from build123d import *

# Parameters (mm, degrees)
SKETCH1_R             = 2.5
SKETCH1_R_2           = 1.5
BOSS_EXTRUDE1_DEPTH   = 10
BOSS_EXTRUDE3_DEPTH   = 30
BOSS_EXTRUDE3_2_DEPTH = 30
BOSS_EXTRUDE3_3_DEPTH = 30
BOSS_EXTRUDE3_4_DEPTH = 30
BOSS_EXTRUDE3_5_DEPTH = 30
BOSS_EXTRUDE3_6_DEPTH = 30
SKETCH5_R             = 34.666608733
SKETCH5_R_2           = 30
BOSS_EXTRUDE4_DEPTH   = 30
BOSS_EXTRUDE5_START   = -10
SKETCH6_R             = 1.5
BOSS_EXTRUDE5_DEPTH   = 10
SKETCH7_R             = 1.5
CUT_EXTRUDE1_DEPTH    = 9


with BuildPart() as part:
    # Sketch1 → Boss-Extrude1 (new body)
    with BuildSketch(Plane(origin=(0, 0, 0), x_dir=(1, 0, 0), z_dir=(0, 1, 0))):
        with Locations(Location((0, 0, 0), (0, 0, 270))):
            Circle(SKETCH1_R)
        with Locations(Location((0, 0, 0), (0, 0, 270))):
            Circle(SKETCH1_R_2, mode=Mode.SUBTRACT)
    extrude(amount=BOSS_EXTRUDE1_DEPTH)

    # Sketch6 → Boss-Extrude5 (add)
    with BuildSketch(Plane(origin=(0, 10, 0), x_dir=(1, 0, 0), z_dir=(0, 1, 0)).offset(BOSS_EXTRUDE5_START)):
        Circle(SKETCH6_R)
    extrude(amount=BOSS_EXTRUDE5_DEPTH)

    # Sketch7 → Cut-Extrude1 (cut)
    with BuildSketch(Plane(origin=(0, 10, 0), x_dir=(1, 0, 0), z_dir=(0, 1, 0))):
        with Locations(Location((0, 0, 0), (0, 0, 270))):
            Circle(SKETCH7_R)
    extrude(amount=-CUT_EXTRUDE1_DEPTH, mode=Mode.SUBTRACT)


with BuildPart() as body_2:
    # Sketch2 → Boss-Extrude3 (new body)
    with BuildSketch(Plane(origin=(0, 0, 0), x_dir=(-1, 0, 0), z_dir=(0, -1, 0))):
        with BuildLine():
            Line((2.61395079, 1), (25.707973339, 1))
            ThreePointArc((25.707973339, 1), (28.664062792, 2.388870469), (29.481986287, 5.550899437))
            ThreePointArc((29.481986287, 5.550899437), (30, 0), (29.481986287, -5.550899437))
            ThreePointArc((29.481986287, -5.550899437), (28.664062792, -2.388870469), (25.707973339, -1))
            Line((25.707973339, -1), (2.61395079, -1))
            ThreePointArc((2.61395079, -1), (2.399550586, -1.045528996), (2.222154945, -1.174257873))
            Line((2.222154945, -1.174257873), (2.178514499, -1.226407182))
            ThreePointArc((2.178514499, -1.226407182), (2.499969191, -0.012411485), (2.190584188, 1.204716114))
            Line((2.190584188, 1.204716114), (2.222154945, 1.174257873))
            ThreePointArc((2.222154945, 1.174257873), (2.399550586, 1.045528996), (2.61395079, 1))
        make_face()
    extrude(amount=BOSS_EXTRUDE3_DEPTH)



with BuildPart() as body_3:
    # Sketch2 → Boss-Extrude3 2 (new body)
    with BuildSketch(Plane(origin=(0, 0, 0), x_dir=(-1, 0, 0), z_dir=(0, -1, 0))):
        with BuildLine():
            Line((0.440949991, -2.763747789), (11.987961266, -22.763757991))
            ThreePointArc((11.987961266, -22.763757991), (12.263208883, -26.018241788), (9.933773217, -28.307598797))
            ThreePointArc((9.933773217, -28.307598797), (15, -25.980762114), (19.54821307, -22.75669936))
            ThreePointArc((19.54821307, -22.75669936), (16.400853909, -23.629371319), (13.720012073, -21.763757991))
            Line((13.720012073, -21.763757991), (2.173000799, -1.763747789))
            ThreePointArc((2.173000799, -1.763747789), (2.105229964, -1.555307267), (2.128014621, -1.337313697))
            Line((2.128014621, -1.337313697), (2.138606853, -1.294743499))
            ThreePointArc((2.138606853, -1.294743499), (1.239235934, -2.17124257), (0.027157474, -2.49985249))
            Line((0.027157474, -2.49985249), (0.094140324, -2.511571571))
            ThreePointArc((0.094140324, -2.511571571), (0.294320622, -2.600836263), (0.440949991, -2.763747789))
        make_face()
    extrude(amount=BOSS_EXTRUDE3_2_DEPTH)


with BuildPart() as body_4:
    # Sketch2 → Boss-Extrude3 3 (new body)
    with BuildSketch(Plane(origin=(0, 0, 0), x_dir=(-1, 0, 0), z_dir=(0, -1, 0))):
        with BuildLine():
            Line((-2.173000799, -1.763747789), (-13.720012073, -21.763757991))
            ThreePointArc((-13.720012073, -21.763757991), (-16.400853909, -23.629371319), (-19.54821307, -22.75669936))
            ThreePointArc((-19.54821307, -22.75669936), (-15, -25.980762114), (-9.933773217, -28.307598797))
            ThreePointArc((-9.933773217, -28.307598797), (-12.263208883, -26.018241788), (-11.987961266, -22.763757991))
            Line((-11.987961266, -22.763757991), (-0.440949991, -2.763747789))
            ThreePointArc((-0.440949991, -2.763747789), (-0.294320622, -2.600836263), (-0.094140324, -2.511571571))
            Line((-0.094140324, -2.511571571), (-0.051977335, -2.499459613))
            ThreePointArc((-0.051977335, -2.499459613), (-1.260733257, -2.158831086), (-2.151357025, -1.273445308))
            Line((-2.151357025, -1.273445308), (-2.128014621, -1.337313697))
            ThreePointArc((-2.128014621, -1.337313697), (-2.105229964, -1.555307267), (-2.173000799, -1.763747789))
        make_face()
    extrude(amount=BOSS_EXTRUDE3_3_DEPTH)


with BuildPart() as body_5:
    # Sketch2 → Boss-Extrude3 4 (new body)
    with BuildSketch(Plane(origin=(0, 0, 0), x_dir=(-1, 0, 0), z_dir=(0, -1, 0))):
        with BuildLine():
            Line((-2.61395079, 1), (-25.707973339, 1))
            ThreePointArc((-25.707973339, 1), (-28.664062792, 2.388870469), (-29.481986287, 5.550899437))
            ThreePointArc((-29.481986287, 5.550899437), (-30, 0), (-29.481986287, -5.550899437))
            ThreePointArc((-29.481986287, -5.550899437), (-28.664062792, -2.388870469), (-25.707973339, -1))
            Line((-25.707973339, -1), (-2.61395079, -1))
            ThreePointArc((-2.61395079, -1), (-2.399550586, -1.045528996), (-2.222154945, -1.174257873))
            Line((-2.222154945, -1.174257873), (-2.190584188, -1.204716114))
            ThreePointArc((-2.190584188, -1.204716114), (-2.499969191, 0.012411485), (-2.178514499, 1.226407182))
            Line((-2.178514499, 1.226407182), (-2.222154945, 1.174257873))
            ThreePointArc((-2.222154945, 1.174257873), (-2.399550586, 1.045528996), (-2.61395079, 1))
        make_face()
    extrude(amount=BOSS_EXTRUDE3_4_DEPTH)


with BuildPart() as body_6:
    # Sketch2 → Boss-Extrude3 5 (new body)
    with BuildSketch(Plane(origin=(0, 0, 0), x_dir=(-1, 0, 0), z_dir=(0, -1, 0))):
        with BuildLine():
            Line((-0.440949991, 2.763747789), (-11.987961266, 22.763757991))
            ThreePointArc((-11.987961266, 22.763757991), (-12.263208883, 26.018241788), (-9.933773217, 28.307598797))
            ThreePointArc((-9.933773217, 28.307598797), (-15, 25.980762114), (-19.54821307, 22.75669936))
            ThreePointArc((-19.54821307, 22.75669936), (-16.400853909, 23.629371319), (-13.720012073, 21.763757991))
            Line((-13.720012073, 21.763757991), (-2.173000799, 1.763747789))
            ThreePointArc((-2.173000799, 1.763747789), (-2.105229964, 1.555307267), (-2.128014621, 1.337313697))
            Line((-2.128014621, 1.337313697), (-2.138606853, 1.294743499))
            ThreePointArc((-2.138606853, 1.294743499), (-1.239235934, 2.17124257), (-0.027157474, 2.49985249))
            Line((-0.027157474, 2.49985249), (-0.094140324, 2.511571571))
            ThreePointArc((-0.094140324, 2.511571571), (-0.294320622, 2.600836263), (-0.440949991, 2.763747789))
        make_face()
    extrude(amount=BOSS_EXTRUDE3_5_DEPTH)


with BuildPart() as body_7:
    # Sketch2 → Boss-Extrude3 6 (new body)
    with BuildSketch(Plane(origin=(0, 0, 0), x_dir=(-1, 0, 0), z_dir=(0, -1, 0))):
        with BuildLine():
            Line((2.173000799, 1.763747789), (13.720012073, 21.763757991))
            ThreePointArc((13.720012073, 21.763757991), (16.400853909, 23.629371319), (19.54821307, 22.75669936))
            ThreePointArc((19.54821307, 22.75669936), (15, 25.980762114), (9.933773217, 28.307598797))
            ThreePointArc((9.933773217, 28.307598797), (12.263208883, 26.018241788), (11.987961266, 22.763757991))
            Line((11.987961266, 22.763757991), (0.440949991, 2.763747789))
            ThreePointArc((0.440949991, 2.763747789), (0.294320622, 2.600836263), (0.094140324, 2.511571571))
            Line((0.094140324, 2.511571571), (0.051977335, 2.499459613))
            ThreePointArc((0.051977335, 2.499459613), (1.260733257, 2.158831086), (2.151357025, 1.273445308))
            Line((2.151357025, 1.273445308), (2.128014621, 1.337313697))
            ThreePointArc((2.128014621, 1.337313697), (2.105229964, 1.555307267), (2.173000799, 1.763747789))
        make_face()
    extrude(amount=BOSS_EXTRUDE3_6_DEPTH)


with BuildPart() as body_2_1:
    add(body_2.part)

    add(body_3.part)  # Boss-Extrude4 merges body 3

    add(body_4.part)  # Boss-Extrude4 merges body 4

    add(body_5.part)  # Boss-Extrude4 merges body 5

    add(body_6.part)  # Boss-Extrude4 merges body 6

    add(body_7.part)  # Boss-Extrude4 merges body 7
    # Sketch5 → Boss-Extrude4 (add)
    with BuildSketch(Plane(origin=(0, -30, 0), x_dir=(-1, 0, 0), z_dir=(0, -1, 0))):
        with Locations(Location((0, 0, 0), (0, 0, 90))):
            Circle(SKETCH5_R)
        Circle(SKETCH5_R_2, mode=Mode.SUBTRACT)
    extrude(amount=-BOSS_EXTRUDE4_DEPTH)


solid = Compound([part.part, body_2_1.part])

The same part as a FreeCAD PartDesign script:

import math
import FreeCAD as App
import Part
import Sketcher

V = App.Vector
Q = App.Units.Quantity

doc = App.newDocument("Part")
body = doc.addObject("PartDesign::Body", "Body")

# Sketch on XZ plane
sketch1 = body.newObject("Sketcher::SketchObject", "Sketch")
sketch1.AttachmentSupport = (doc.getObject("XZ_Plane"), [""])
sketch1.MapMode = "FlatFace"
sketch1.addGeometry(Part.Circle(V(0, 0, 0), V(0, 0, 1), 2.5), False)
sketch1.addGeometry(Part.Circle(V(0, 0, 0), V(0, 0, 1), 1.5), False)
sketch1.addConstraint(Sketcher.Constraint("Coincident", 0, 3, -1, 1))
sketch1.addConstraint(Sketcher.Constraint("Coincident", 1, 3, -1, 1))
sketch1.addConstraint(Sketcher.Constraint("Diameter", 0, Q("5 mm")))
sketch1.addConstraint(Sketcher.Constraint("Diameter", 1, Q("3 mm")))
pad1 = body.newObject("PartDesign::Pad", "Pad")
pad1.Profile = sketch1
pad1.Length = 10
pad1.Reversed = True

# Sketch on XZ plane
sketch2 = body.newObject("Sketcher::SketchObject", "Sketch001")
sketch2.AttachmentSupport = (doc.getObject("XZ_Plane"), [""])
sketch2.MapMode = "FlatFace"
sketch2.addGeometry(Part.Circle(V(0, 0, 0), V(0, 0, 1), 1.5), False)
sketch2.addConstraint(Sketcher.Constraint("Coincident", 0, 3, -1, 1))
sketch2.addConstraint(Sketcher.Constraint("Diameter", 0, Q("3 mm")))
pad2 = body.newObject("PartDesign::Pad", "Pad001")
pad2.Profile = sketch2
pad2.Length = 10
pad2.Reversed = True

# Sketch on XZ plane
sketch3 = body.newObject("Sketcher::SketchObject", "Sketch002")
sketch3.AttachmentSupport = (doc.getObject("XZ_Plane"), [""])
sketch3.MapMode = "FlatFace"
sketch3.AttachmentOffset = App.Placement(V(0, 0, -10), App.Rotation())
sketch3.addGeometry(Part.Circle(V(0, 0, 0), V(0, 0, 1), 1.5), False)
sketch3.addConstraint(Sketcher.Constraint("Coincident", 0, 3, -1, 1))
sketch3.addConstraint(Sketcher.Constraint("Diameter", 0, Q("3 mm")))
pocket1 = body.newObject("PartDesign::Pocket", "Pocket")
pocket1.Profile = sketch3
pocket1.Length = 9
pocket1.Reversed = True
body2 = doc.addObject("PartDesign::Body", "Body001")

# Sketch on XZ plane
sketch4 = body2.newObject("Sketcher::SketchObject", "Sketch003")
sketch4.AttachmentSupport = (doc.getObject("XZ_Plane001"), [""])
sketch4.MapMode = "FlatFace"
sketch4.addGeometry(Part.LineSegment(V(-25.707973, -1, 0), V(-2.613951, -1, 0)), False)
sketch4.addGeometry(Part.ArcOfCircle(Part.Circle(V(-2.613951, -1.52758, 0), V(0, 0, 1), 0.52758), math.radians(42.044158), math.radians(90)), False)
sketch4.addGeometry(Part.LineSegment(V(-2.222155, -1.174258, 0), V(-2.190584, -1.204716, 0)), False)
sketch4.addGeometry(Part.ArcOfCircle(Part.Circle(V(0, 0, 0), V(0, 0, 1), 2.5), math.radians(150.622416), math.radians(208.808681)), False)
sketch4.addGeometry(Part.LineSegment(V(-2.178514, 1.226407, 0), V(-2.222155, 1.174258, 0)), False)
sketch4.addGeometry(Part.ArcOfCircle(Part.Circle(V(-2.613951, 1.52758, 0), V(0, 0, 1), 0.52758), math.radians(-90), math.radians(-42.044158)), False)
sketch4.addGeometry(Part.LineSegment(V(-2.613951, 1, 0), V(-25.707973, 1, 0)), False)
sketch4.addGeometry(Part.ArcOfCircle(Part.Circle(V(-25.707973, 4.840324, 0), V(0, 0, 1), 3.840324), math.radians(169.33712), math.radians(270)), False)
sketch4.addGeometry(Part.ArcOfCircle(Part.Circle(V(0, 0, 0), V(0, 0, 1), 30), math.radians(169.33712), math.radians(190.66288)), False)
sketch4.addGeometry(Part.ArcOfCircle(Part.Circle(V(-25.707973, -4.840324, 0), V(0, 0, 1), 3.840324), math.radians(90), math.radians(190.66288)), False)
sketch4.addConstraint(Sketcher.Constraint("Tangent", 0, 2, 1, 2))
sketch4.addConstraint(Sketcher.Constraint("Coincident", 1, 1, 2, 1))
sketch4.addConstraint(Sketcher.Constraint("Coincident", 2, 2, 3, 2))
sketch4.addConstraint(Sketcher.Constraint("Coincident", 3, 1, 4, 1))
sketch4.addConstraint(Sketcher.Constraint("Coincident", 4, 2, 5, 2))
sketch4.addConstraint(Sketcher.Constraint("Tangent", 5, 1, 6, 1))
sketch4.addConstraint(Sketcher.Constraint("Tangent", 6, 2, 7, 2))
sketch4.addConstraint(Sketcher.Constraint("Tangent", 7, 1, 8, 1))
sketch4.addConstraint(Sketcher.Constraint("Tangent", 8, 2, 9, 2))
sketch4.addConstraint(Sketcher.Constraint("Tangent", 9, 1, 0, 1))
sketch4.addConstraint(Sketcher.Constraint("Horizontal", 0))
sketch4.addConstraint(Sketcher.Constraint("Horizontal", 6))
sketch4.addConstraint(Sketcher.Constraint("Coincident", 3, 3, -1, 1))
sketch4.addConstraint(Sketcher.Constraint("Coincident", 8, 3, -1, 1))
sketch4.addConstraint(Sketcher.Constraint("Equal", 1, 5))
sketch4.addConstraint(Sketcher.Constraint("Equal", 7, 9))
sketch4.addConstraint(Sketcher.Constraint("Symmetric", 1, 3, 5, 3, -1))
sketch4.addConstraint(Sketcher.Constraint("Vertical", 1, 1, 4, 2))
sketch4.addConstraint(Sketcher.Constraint("Radius", 8, Q("30 mm")))
sketch4.addConstraint(Sketcher.Constraint("Radius", 3, Q("2.5 mm")))
sketch4.addConstraint(Sketcher.Constraint("DistanceY", 0, 2, -1, 1, Q("1 mm")))
sketch4.addConstraint(Sketcher.Constraint("Radius", 1, Q("0.52758 mm")))
sketch4.addConstraint(Sketcher.Constraint("Distance", 4, Q("0.068 mm")))
sketch4.addConstraint(Sketcher.Constraint("Radius", 7, Q("3.840324 mm")))
sketch4.addConstraint(Sketcher.Constraint("Distance", 2, Q("0.043868 mm")))
sketch4.addConstraint(Sketcher.Constraint("DistanceX", 0, 1, 0, 2, Q("23.094023 mm")))
sketch4.addConstraint(Sketcher.Constraint("DistanceY", 1, 3, 1, 1, Q("0.353322 mm")))
pad3 = body2.newObject("PartDesign::Pad", "Pad002")
pad3.Profile = sketch4
pad3.Length = 30
body3 = doc.addObject("PartDesign::Body", "Body002")

# Sketch on XZ plane
sketch5 = body3.newObject("Sketcher::SketchObject", "Sketch004")
sketch5.AttachmentSupport = (doc.getObject("XZ_Plane002"), [""])
sketch5.MapMode = "FlatFace"
sketch5.addGeometry(Part.LineSegment(V(-0.44095, 2.763748, 0), V(-11.987961, 22.763758, 0)), False)
sketch5.addGeometry(Part.ArcOfCircle(Part.Circle(V(-8.662143, 24.68392, 0), V(0, 0, 1), 3.840324), math.radians(109.33712), math.radians(210)), False)
sketch5.addGeometry(Part.ArcOfCircle(Part.Circle(V(0, 0, 0), V(0, 0, 1), 30), math.radians(109.33712), math.radians(130.66288)), False)
sketch5.addGeometry(Part.ArcOfCircle(Part.Circle(V(-17.04583, 19.843596, 0), V(0, 0, 1), 3.840324), math.radians(30), math.radians(130.66288)), False)
sketch5.addGeometry(Part.LineSegment(V(-13.720012, 21.763758, 0), V(-2.173001, 1.763748, 0)), False)
sketch5.addGeometry(Part.ArcOfCircle(Part.Circle(V(-2.629898, 1.499958, 0), V(0, 0, 1), 0.52758), math.radians(-17.955842), math.radians(30)), False)
sketch5.addGeometry(Part.LineSegment(V(-2.128015, 1.337314, 0), V(-2.138607, 1.294743, 0)), False)
sketch5.addGeometry(Part.ArcOfCircle(Part.Circle(V(0, 0, 0), V(0, 0, 1), 2.5), math.radians(90.622416), math.radians(148.808681)), False)
sketch5.addGeometry(Part.LineSegment(V(-0.027157, 2.499852, 0), V(-0.09414, 2.511572, 0)), False)
sketch5.addGeometry(Part.ArcOfCircle(Part.Circle(V(0.015947, 3.027538, 0), V(0, 0, 1), 0.52758), math.radians(-150), math.radians(-102.044157)), False)
sketch5.addConstraint(Sketcher.Constraint("Tangent", 0, 2, 1, 2))
sketch5.addConstraint(Sketcher.Constraint("Tangent", 1, 1, 2, 1))
sketch5.addConstraint(Sketcher.Constraint("Tangent", 2, 2, 3, 2))
sketch5.addConstraint(Sketcher.Constraint("Tangent", 3, 1, 4, 1))
sketch5.addConstraint(Sketcher.Constraint("Tangent", 4, 2, 5, 2))
sketch5.addConstraint(Sketcher.Constraint("Coincident", 5, 1, 6, 1))
sketch5.addConstraint(Sketcher.Constraint("Coincident", 6, 2, 7, 2))
sketch5.addConstraint(Sketcher.Constraint("Coincident", 7, 1, 8, 1))
sketch5.addConstraint(Sketcher.Constraint("Coincident", 8, 2, 9, 2))
sketch5.addConstraint(Sketcher.Constraint("Tangent", 9, 1, 0, 1))
sketch5.addConstraint(Sketcher.Constraint("Coincident", 2, 3, -1, 1))
sketch5.addConstraint(Sketcher.Constraint("Coincident", 7, 3, -1, 1))
sketch5.addConstraint(Sketcher.Constraint("Equal", 1, 3))
sketch5.addConstraint(Sketcher.Constraint("Equal", 5, 9))
sketch5.addConstraint(Sketcher.Constraint("Parallel", 0, 4))
sketch5.addConstraint(Sketcher.Constraint("Equal", 0, 4))
sketch5.addConstraint(Sketcher.Constraint("Radius", 2, Q("30 mm")))
sketch5.addConstraint(Sketcher.Constraint("Radius", 7, Q("2.5 mm")))
sketch5.addConstraint(Sketcher.Constraint("Angle", 0, Q("120 deg")))
sketch5.addConstraint(Sketcher.Constraint("DistanceY", 3, 1, 0, 2, Q("1 mm")))
sketch5.addConstraint(Sketcher.Constraint("Radius", 5, Q("0.52758 mm")))
sketch5.addConstraint(Sketcher.Constraint("Distance", 8, Q("0.068 mm")))
sketch5.addConstraint(Sketcher.Constraint("DistanceX", 4, 2, -1, 1, Q("2.173001 mm")))
sketch5.addConstraint(Sketcher.Constraint("Radius", 1, Q("3.840324 mm")))
sketch5.addConstraint(Sketcher.Constraint("DistanceY", -1, 1, 1, 1, Q("28.307599 mm")))
sketch5.addConstraint(Sketcher.Constraint("Distance", 6, Q("0.043868 mm")))
sketch5.addConstraint(Sketcher.Constraint("DistanceX", 8, 2, -1, 1, Q("0.09414 mm")))
sketch5.addConstraint(Sketcher.Constraint("DistanceX", 5, 1, 9, 3, Q("2.143962 mm")))
pad4 = body3.newObject("PartDesign::Pad", "Pad003")
pad4.Profile = sketch5
pad4.Length = 30
body4 = doc.addObject("PartDesign::Body", "Body003")

# Sketch on XZ plane
sketch6 = body4.newObject("Sketcher::SketchObject", "Sketch005")
sketch6.AttachmentSupport = (doc.getObject("XZ_Plane003"), [""])
sketch6.MapMode = "FlatFace"
sketch6.addGeometry(Part.LineSegment(V(2.173001, 1.763748, 0), V(13.720012, 21.763758, 0)), False)
sketch6.addGeometry(Part.ArcOfCircle(Part.Circle(V(17.04583, 19.843596, 0), V(0, 0, 1), 3.840324), math.radians(49.33712), math.radians(150)), False)
sketch6.addGeometry(Part.ArcOfCircle(Part.Circle(V(0, 0, 0), V(0, 0, 1), 30), math.radians(49.33712), math.radians(70.66288)), False)
sketch6.addGeometry(Part.ArcOfCircle(Part.Circle(V(8.662143, 24.68392, 0), V(0, 0, 1), 3.840324), math.radians(-30), math.radians(70.66288)), False)
sketch6.addGeometry(Part.LineSegment(V(11.987961, 22.763758, 0), V(0.44095, 2.763748, 0)), False)
sketch6.addGeometry(Part.ArcOfCircle(Part.Circle(V(-0.015947, 3.027538, 0), V(0, 0, 1), 0.52758), math.radians(-77.955843), math.radians(-30)), False)
sketch6.addGeometry(Part.LineSegment(V(0.09414, 2.511572, 0), V(0.051977, 2.49946, 0)), False)
sketch6.addGeometry(Part.ArcOfCircle(Part.Circle(V(0, 0, 0), V(0, 0, 1), 2.5), math.radians(30.622416), math.radians(88.808681)), False)
sketch6.addGeometry(Part.LineSegment(V(2.151357, 1.273445, 0), V(2.128015, 1.337314, 0)), False)
sketch6.addGeometry(Part.ArcOfCircle(Part.Circle(V(2.629898, 1.499958, 0), V(0, 0, 1), 0.52758), math.radians(150), math.radians(197.955842)), False)
sketch6.addConstraint(Sketcher.Constraint("Tangent", 0, 2, 1, 2))
sketch6.addConstraint(Sketcher.Constraint("Tangent", 1, 1, 2, 1))
sketch6.addConstraint(Sketcher.Constraint("Tangent", 2, 2, 3, 2))
sketch6.addConstraint(Sketcher.Constraint("Tangent", 3, 1, 4, 1))
sketch6.addConstraint(Sketcher.Constraint("Tangent", 4, 2, 5, 2))
sketch6.addConstraint(Sketcher.Constraint("Coincident", 5, 1, 6, 1))
sketch6.addConstraint(Sketcher.Constraint("Coincident", 6, 2, 7, 2))
sketch6.addConstraint(Sketcher.Constraint("Coincident", 7, 1, 8, 1))
sketch6.addConstraint(Sketcher.Constraint("Coincident", 8, 2, 9, 2))
sketch6.addConstraint(Sketcher.Constraint("Tangent", 9, 1, 0, 1))
sketch6.addConstraint(Sketcher.Constraint("Coincident", 2, 3, -1, 1))
sketch6.addConstraint(Sketcher.Constraint("Coincident", 7, 3, -1, 1))
sketch6.addConstraint(Sketcher.Constraint("Equal", 1, 3))
sketch6.addConstraint(Sketcher.Constraint("Equal", 5, 9))
sketch6.addConstraint(Sketcher.Constraint("Parallel", 0, 4))
sketch6.addConstraint(Sketcher.Constraint("Equal", 0, 4))
sketch6.addConstraint(Sketcher.Constraint("Radius", 2, Q("30 mm")))
sketch6.addConstraint(Sketcher.Constraint("Radius", 7, Q("2.5 mm")))
sketch6.addConstraint(Sketcher.Constraint("Angle", 0, Q("60 deg")))
sketch6.addConstraint(Sketcher.Constraint("DistanceY", 0, 2, 3, 1, Q("1 mm")))
sketch6.addConstraint(Sketcher.Constraint("Radius", 5, Q("0.52758 mm")))
sketch6.addConstraint(Sketcher.Constraint("Distance", 8, Q("0.068 mm")))
sketch6.addConstraint(Sketcher.Constraint("DistanceX", -1, 1, 9, 1, Q("2.173001 mm")))
sketch6.addConstraint(Sketcher.Constraint("Radius", 1, Q("3.840324 mm")))
sketch6.addConstraint(Sketcher.Constraint("DistanceY", -1, 1, 1, 1, Q("22.756699 mm")))
sketch6.addConstraint(Sketcher.Constraint("Distance", 6, Q("0.043868 mm")))
sketch6.addConstraint(Sketcher.Constraint("DistanceX", -1, 1, 5, 1, Q("0.09414 mm")))
sketch6.addConstraint(Sketcher.Constraint("DistanceX", 7, 1, 9, 3, Q("0.478541 mm")))
pad5 = body4.newObject("PartDesign::Pad", "Pad004")
pad5.Profile = sketch6
pad5.Length = 30
body5 = doc.addObject("PartDesign::Body", "Body004")

# Sketch on XZ plane
sketch7 = body5.newObject("Sketcher::SketchObject", "Sketch006")
sketch7.AttachmentSupport = (doc.getObject("XZ_Plane004"), [""])
sketch7.MapMode = "FlatFace"
sketch7.addGeometry(Part.LineSegment(V(2.613951, -1, 0), V(25.707973, -1, 0)), False)
sketch7.addGeometry(Part.ArcOfCircle(Part.Circle(V(25.707973, -4.840324, 0), V(0, 0, 1), 3.840324), math.radians(-10.66288), math.radians(90)), False)
sketch7.addGeometry(Part.ArcOfCircle(Part.Circle(V(0, 0, 0), V(0, 0, 1), 30), math.radians(-10.66288), math.radians(10.66288)), False)
sketch7.addGeometry(Part.ArcOfCircle(Part.Circle(V(25.707973, 4.840324, 0), V(0, 0, 1), 3.840324), math.radians(-90), math.radians(10.66288)), False)
sketch7.addGeometry(Part.LineSegment(V(25.707973, 1, 0), V(2.613951, 1, 0)), False)
sketch7.addGeometry(Part.ArcOfCircle(Part.Circle(V(2.613951, 1.52758, 0), V(0, 0, 1), 0.52758), math.radians(-137.955842), math.radians(-90)), False)
sketch7.addGeometry(Part.LineSegment(V(2.222155, 1.174258, 0), V(2.190584, 1.204716, 0)), False)
sketch7.addGeometry(Part.ArcOfCircle(Part.Circle(V(0, 0, 0), V(0, 0, 1), 2.5), math.radians(-29.377584), math.radians(28.808681)), False)
sketch7.addGeometry(Part.LineSegment(V(2.178514, -1.226407, 0), V(2.222155, -1.174258, 0)), False)
sketch7.addGeometry(Part.ArcOfCircle(Part.Circle(V(2.613951, -1.52758, 0), V(0, 0, 1), 0.52758), math.radians(90), math.radians(137.955842)), False)
sketch7.addConstraint(Sketcher.Constraint("Tangent", 0, 2, 1, 2))
sketch7.addConstraint(Sketcher.Constraint("Tangent", 1, 1, 2, 1))
sketch7.addConstraint(Sketcher.Constraint("Tangent", 2, 2, 3, 2))
sketch7.addConstraint(Sketcher.Constraint("Tangent", 3, 1, 4, 1))
sketch7.addConstraint(Sketcher.Constraint("Tangent", 4, 2, 5, 2))
sketch7.addConstraint(Sketcher.Constraint("Coincident", 5, 1, 6, 1))
sketch7.addConstraint(Sketcher.Constraint("Coincident", 6, 2, 7, 2))
sketch7.addConstraint(Sketcher.Constraint("Coincident", 7, 1, 8, 1))
sketch7.addConstraint(Sketcher.Constraint("Coincident", 8, 2, 9, 2))
sketch7.addConstraint(Sketcher.Constraint("Tangent", 9, 1, 0, 1))
sketch7.addConstraint(Sketcher.Constraint("Horizontal", 0))
sketch7.addConstraint(Sketcher.Constraint("Horizontal", 4))
sketch7.addConstraint(Sketcher.Constraint("Coincident", 2, 3, -1, 1))
sketch7.addConstraint(Sketcher.Constraint("Coincident", 7, 3, -1, 1))
sketch7.addConstraint(Sketcher.Constraint("Equal", 1, 3))
sketch7.addConstraint(Sketcher.Constraint("Equal", 5, 9))
sketch7.addConstraint(Sketcher.Constraint("Symmetric", 5, 3, 9, 3, -1))
sketch7.addConstraint(Sketcher.Constraint("Vertical", 5, 1, 8, 2))
sketch7.addConstraint(Sketcher.Constraint("Radius", 2, Q("30 mm")))
sketch7.addConstraint(Sketcher.Constraint("Radius", 7, Q("2.5 mm")))
sketch7.addConstraint(Sketcher.Constraint("DistanceY", 0, 2, -1, 1, Q("1 mm")))
sketch7.addConstraint(Sketcher.Constraint("Radius", 5, Q("0.52758 mm")))
sketch7.addConstraint(Sketcher.Constraint("Distance", 8, Q("0.068 mm")))
sketch7.addConstraint(Sketcher.Constraint("Radius", 1, Q("3.840324 mm")))
sketch7.addConstraint(Sketcher.Constraint("Distance", 6, Q("0.043868 mm")))
sketch7.addConstraint(Sketcher.Constraint("DistanceX", 0, 1, 0, 2, Q("23.094023 mm")))
sketch7.addConstraint(Sketcher.Constraint("DistanceY", 5, 1, 5, 3, Q("0.353322 mm")))
pad6 = body5.newObject("PartDesign::Pad", "Pad005")
pad6.Profile = sketch7
pad6.Length = 30
body6 = doc.addObject("PartDesign::Body", "Body005")

# Sketch on XZ plane
sketch8 = body6.newObject("Sketcher::SketchObject", "Sketch007")
sketch8.AttachmentSupport = (doc.getObject("XZ_Plane005"), [""])
sketch8.MapMode = "FlatFace"
sketch8.addGeometry(Part.LineSegment(V(0.44095, -2.763748, 0), V(11.987961, -22.763758, 0)), False)
sketch8.addGeometry(Part.ArcOfCircle(Part.Circle(V(8.662143, -24.68392, 0), V(0, 0, 1), 3.840324), math.radians(-70.66288), math.radians(30)), False)
sketch8.addGeometry(Part.ArcOfCircle(Part.Circle(V(0, 0, 0), V(0, 0, 1), 30), math.radians(-70.66288), math.radians(-49.33712)), False)
sketch8.addGeometry(Part.ArcOfCircle(Part.Circle(V(17.04583, -19.843596, 0), V(0, 0, 1), 3.840324), math.radians(-150), math.radians(-49.33712)), False)
sketch8.addGeometry(Part.LineSegment(V(13.720012, -21.763758, 0), V(2.173001, -1.763748, 0)), False)
sketch8.addGeometry(Part.ArcOfCircle(Part.Circle(V(2.629898, -1.499958, 0), V(0, 0, 1), 0.52758), math.radians(162.044158), math.radians(210)), False)
sketch8.addGeometry(Part.LineSegment(V(2.128015, -1.337314, 0), V(2.138607, -1.294743, 0)), False)
sketch8.addGeometry(Part.ArcOfCircle(Part.Circle(V(0, 0, 0), V(0, 0, 1), 2.5), math.radians(-89.377584), math.radians(-31.191319)), False)
sketch8.addGeometry(Part.LineSegment(V(0.027157, -2.499852, 0), V(0.09414, -2.511572, 0)), False)
sketch8.addGeometry(Part.ArcOfCircle(Part.Circle(V(-0.015947, -3.027538, 0), V(0, 0, 1), 0.52758), math.radians(30), math.radians(77.955843)), False)
sketch8.addConstraint(Sketcher.Constraint("Tangent", 0, 2, 1, 2))
sketch8.addConstraint(Sketcher.Constraint("Tangent", 1, 1, 2, 1))
sketch8.addConstraint(Sketcher.Constraint("Tangent", 2, 2, 3, 2))
sketch8.addConstraint(Sketcher.Constraint("Tangent", 3, 1, 4, 1))
sketch8.addConstraint(Sketcher.Constraint("Tangent", 4, 2, 5, 2))
sketch8.addConstraint(Sketcher.Constraint("Coincident", 5, 1, 6, 1))
sketch8.addConstraint(Sketcher.Constraint("Coincident", 6, 2, 7, 2))
sketch8.addConstraint(Sketcher.Constraint("Coincident", 7, 1, 8, 1))
sketch8.addConstraint(Sketcher.Constraint("Coincident", 8, 2, 9, 2))
sketch8.addConstraint(Sketcher.Constraint("Tangent", 9, 1, 0, 1))
sketch8.addConstraint(Sketcher.Constraint("Coincident", 2, 3, -1, 1))
sketch8.addConstraint(Sketcher.Constraint("Coincident", 7, 3, -1, 1))
sketch8.addConstraint(Sketcher.Constraint("Equal", 1, 3))
sketch8.addConstraint(Sketcher.Constraint("Equal", 5, 9))
sketch8.addConstraint(Sketcher.Constraint("Parallel", 0, 4))
sketch8.addConstraint(Sketcher.Constraint("Equal", 0, 4))
sketch8.addConstraint(Sketcher.Constraint("Radius", 2, Q("30 mm")))
sketch8.addConstraint(Sketcher.Constraint("Radius", 7, Q("2.5 mm")))
sketch8.addConstraint(Sketcher.Constraint("Angle", 0, Q("-60 deg")))
sketch8.addConstraint(Sketcher.Constraint("DistanceY", 0, 2, 3, 1, Q("1 mm")))
sketch8.addConstraint(Sketcher.Constraint("Radius", 5, Q("0.52758 mm")))
sketch8.addConstraint(Sketcher.Constraint("Distance", 8, Q("0.068 mm")))
sketch8.addConstraint(Sketcher.Constraint("DistanceX", -1, 1, 4, 2, Q("2.173001 mm")))
sketch8.addConstraint(Sketcher.Constraint("Radius", 1, Q("3.840324 mm")))
sketch8.addConstraint(Sketcher.Constraint("DistanceY", 1, 1, -1, 1, Q("28.307599 mm")))
sketch8.addConstraint(Sketcher.Constraint("Distance", 6, Q("0.043868 mm")))
sketch8.addConstraint(Sketcher.Constraint("DistanceX", -1, 1, 8, 2, Q("0.09414 mm")))
sketch8.addConstraint(Sketcher.Constraint("DistanceX", 9, 3, 5, 1, Q("2.143962 mm")))
pad7 = body6.newObject("PartDesign::Pad", "Pad006")
pad7.Profile = sketch8
pad7.Length = 30
body7 = doc.addObject("PartDesign::Body", "Body006")

# Sketch on XZ plane
sketch9 = body7.newObject("Sketcher::SketchObject", "Sketch008")
sketch9.AttachmentSupport = (doc.getObject("XZ_Plane006"), [""])
sketch9.MapMode = "FlatFace"
sketch9.addGeometry(Part.LineSegment(V(-2.173001, -1.763748, 0), V(-13.720012, -21.763758, 0)), False)
sketch9.addGeometry(Part.ArcOfCircle(Part.Circle(V(-17.04583, -19.843596, 0), V(0, 0, 1), 3.840324), math.radians(-130.66288), math.radians(-30)), False)
sketch9.addGeometry(Part.ArcOfCircle(Part.Circle(V(0, 0, 0), V(0, 0, 1), 30), math.radians(-130.66288), math.radians(-109.33712)), False)
sketch9.addGeometry(Part.ArcOfCircle(Part.Circle(V(-8.662143, -24.68392, 0), V(0, 0, 1), 3.840324), math.radians(150), math.radians(250.66288)), False)
sketch9.addGeometry(Part.LineSegment(V(-11.987961, -22.763758, 0), V(-0.44095, -2.763748, 0)), False)
sketch9.addGeometry(Part.ArcOfCircle(Part.Circle(V(0.015947, -3.027538, 0), V(0, 0, 1), 0.52758), math.radians(102.044157), math.radians(150)), False)
sketch9.addGeometry(Part.LineSegment(V(-0.09414, -2.511572, 0), V(-0.051977, -2.49946, 0)), False)
sketch9.addGeometry(Part.ArcOfCircle(Part.Circle(V(0, 0, 0), V(0, 0, 1), 2.5), math.radians(-149.377584), math.radians(-91.191319)), False)
sketch9.addGeometry(Part.LineSegment(V(-2.151357, -1.273445, 0), V(-2.128015, -1.337314, 0)), False)
sketch9.addGeometry(Part.ArcOfCircle(Part.Circle(V(-2.629898, -1.499958, 0), V(0, 0, 1), 0.52758), math.radians(-30), math.radians(17.955842)), False)
sketch9.addConstraint(Sketcher.Constraint("Tangent", 0, 2, 1, 2))
sketch9.addConstraint(Sketcher.Constraint("Tangent", 1, 1, 2, 1))
sketch9.addConstraint(Sketcher.Constraint("Tangent", 2, 2, 3, 2))
sketch9.addConstraint(Sketcher.Constraint("Tangent", 3, 1, 4, 1))
sketch9.addConstraint(Sketcher.Constraint("Tangent", 4, 2, 5, 2))
sketch9.addConstraint(Sketcher.Constraint("Coincident", 5, 1, 6, 1))
sketch9.addConstraint(Sketcher.Constraint("Coincident", 6, 2, 7, 2))
sketch9.addConstraint(Sketcher.Constraint("Coincident", 7, 1, 8, 1))
sketch9.addConstraint(Sketcher.Constraint("Coincident", 8, 2, 9, 2))
sketch9.addConstraint(Sketcher.Constraint("Tangent", 9, 1, 0, 1))
sketch9.addConstraint(Sketcher.Constraint("Coincident", 2, 3, -1, 1))
sketch9.addConstraint(Sketcher.Constraint("Coincident", 7, 3, -1, 1))
sketch9.addConstraint(Sketcher.Constraint("Equal", 1, 3))
sketch9.addConstraint(Sketcher.Constraint("Equal", 5, 9))
sketch9.addConstraint(Sketcher.Constraint("Parallel", 0, 4))
sketch9.addConstraint(Sketcher.Constraint("Equal", 0, 4))
sketch9.addConstraint(Sketcher.Constraint("Radius", 2, Q("30 mm")))
sketch9.addConstraint(Sketcher.Constraint("Radius", 7, Q("2.5 mm")))
sketch9.addConstraint(Sketcher.Constraint("Angle", 0, Q("-120 deg")))
sketch9.addConstraint(Sketcher.Constraint("DistanceY", 3, 1, 0, 2, Q("1 mm")))
sketch9.addConstraint(Sketcher.Constraint("Radius", 5, Q("0.52758 mm")))
sketch9.addConstraint(Sketcher.Constraint("Distance", 8, Q("0.068 mm")))
sketch9.addConstraint(Sketcher.Constraint("DistanceX", 9, 1, -1, 1, Q("2.173001 mm")))
sketch9.addConstraint(Sketcher.Constraint("Radius", 1, Q("3.840324 mm")))
sketch9.addConstraint(Sketcher.Constraint("DistanceY", 1, 1, -1, 1, Q("22.756699 mm")))
sketch9.addConstraint(Sketcher.Constraint("Distance", 6, Q("0.043868 mm")))
sketch9.addConstraint(Sketcher.Constraint("DistanceX", 5, 1, -1, 1, Q("0.09414 mm")))
sketch9.addConstraint(Sketcher.Constraint("DistanceX", 9, 3, 7, 1, Q("0.478541 mm")))
pad8 = body7.newObject("PartDesign::Pad", "Pad007")
pad8.Profile = sketch9
pad8.Length = 30
body2.AllowCompound = True
doc.recompute()

boolean = body2.newObject("PartDesign::Boolean", "Boolean")
boolean.Type = "Fuse"
boolean.addObjects([body3])
doc.recompute()

boolean2 = body2.newObject("PartDesign::Boolean", "Boolean001")
boolean2.Type = "Fuse"
boolean2.addObjects([body4])
doc.recompute()

boolean3 = body2.newObject("PartDesign::Boolean", "Boolean002")
boolean3.Type = "Fuse"
boolean3.addObjects([body5])
doc.recompute()

boolean4 = body2.newObject("PartDesign::Boolean", "Boolean003")
boolean4.Type = "Fuse"
boolean4.addObjects([body6])
doc.recompute()

boolean5 = body2.newObject("PartDesign::Boolean", "Boolean004")
boolean5.Type = "Fuse"
boolean5.addObjects([body7])

# Sketch on XZ plane
sketch10 = body2.newObject("Sketcher::SketchObject", "Sketch009")
sketch10.AttachmentSupport = (doc.getObject("XZ_Plane001"), [""])
sketch10.MapMode = "FlatFace"
sketch10.AttachmentOffset = App.Placement(V(0, 0, 30), App.Rotation())
sketch10.addGeometry(Part.Circle(V(0, 0, 0), V(0, 0, 1), 34.666609), False)
sketch10.addGeometry(Part.Circle(V(0, 0, 0), V(0, 0, 1), 30), False)
sketch10.addConstraint(Sketcher.Constraint("Coincident", 0, 3, -1, 1))
sketch10.addConstraint(Sketcher.Constraint("Coincident", 1, 3, -1, 1))
sketch10.addConstraint(Sketcher.Constraint("Diameter", 1, Q("60 mm")))
sketch10.addConstraint(Sketcher.Constraint("Diameter", 0, Q("69.333217 mm")))
pad9 = body2.newObject("PartDesign::Pad", "Pad008")
pad9.Profile = sketch10
pad9.Length = 30
pad9.Reversed = True

doc.recompute()
